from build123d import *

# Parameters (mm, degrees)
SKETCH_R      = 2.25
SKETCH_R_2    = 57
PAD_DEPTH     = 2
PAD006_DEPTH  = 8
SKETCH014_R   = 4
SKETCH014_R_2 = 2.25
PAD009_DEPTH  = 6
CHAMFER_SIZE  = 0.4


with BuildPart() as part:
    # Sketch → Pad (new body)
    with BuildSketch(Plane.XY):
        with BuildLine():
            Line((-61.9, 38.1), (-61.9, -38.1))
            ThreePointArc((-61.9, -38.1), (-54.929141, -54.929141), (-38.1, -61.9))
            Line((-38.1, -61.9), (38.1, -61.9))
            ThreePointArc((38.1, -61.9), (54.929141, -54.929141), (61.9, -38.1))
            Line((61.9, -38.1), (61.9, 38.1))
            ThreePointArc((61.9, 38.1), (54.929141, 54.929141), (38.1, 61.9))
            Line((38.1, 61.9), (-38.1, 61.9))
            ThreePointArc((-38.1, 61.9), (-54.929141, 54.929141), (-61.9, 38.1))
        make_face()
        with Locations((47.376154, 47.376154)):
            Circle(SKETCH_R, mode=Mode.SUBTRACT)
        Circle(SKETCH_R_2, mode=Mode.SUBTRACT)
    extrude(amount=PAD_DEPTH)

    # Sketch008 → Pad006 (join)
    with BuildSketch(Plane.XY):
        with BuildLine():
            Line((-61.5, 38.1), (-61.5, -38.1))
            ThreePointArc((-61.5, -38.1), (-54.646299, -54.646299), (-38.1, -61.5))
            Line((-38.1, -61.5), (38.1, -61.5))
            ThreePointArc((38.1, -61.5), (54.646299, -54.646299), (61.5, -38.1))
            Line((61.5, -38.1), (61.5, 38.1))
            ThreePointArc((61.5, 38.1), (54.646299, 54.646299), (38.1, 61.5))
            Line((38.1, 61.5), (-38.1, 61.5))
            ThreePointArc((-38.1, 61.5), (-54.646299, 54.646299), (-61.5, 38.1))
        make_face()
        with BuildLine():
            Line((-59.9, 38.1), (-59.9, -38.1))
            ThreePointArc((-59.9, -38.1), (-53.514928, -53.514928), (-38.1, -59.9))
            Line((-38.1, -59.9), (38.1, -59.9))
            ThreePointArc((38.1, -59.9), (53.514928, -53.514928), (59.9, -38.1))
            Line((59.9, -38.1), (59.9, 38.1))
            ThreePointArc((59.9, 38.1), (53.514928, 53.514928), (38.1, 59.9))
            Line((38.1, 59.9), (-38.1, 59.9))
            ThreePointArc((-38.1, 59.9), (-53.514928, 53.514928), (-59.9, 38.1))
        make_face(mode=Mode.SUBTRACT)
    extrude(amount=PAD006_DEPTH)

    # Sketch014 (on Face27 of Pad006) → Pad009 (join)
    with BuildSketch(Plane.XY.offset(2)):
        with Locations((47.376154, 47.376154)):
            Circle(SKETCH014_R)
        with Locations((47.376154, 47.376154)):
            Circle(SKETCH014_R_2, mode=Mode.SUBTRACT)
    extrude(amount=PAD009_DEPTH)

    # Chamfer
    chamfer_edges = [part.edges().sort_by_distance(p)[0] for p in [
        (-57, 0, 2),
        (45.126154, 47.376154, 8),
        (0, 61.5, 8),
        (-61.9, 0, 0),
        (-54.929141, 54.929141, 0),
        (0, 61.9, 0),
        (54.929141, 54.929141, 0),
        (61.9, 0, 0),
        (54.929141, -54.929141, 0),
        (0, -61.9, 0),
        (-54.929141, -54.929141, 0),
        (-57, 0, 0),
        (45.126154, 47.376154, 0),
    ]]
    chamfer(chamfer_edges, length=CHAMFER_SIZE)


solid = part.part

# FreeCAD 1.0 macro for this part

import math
import FreeCAD as App
import Part
import Sketcher

V = App.Vector
Q = App.Units.Quantity


def edges_at(feature, points):
    """Names of the edges that pass closest to the given points."""
    edges = feature.Shape.Edges
    near = lambda p: min(range(len(edges)), key=lambda i: edges[i].distToShape(Part.Vertex(*p))[0])
    return sorted({f"Edge{near(p) + 1}" for p in points})

doc = App.newDocument("Part")
body = doc.addObject("PartDesign::Body", "Body")

# Sketch on XY plane
sketch1 = body.newObject("Sketcher::SketchObject", "Sketch")
sketch1.AttachmentSupport = (doc.getObject("XY_Plane"), [""])
sketch1.MapMode = "FlatFace"
sketch1.addGeometry(Part.LineSegment(V(-61.9, 38.1, 0), V(-61.9, -38.1, 0)), False)
sketch1.addGeometry(Part.ArcOfCircle(Part.Circle(V(-38.1, -38.1, 0), V(0, 0, 1), 23.8), math.radians(-180), math.radians(-90)), False)
sketch1.addGeometry(Part.LineSegment(V(-38.1, -61.9, 0), V(38.1, -61.9, 0)), False)
sketch1.addGeometry(Part.ArcOfCircle(Part.Circle(V(38.1, -38.1, 0), V(0, 0, 1), 23.8), math.radians(-90), math.radians(0)), False)
sketch1.addGeometry(Part.LineSegment(V(61.9, -38.1, 0), V(61.9, 38.1, 0)), False)
sketch1.addGeometry(Part.ArcOfCircle(Part.Circle(V(38.1, 38.1, 0), V(0, 0, 1), 23.8), math.radians(0), math.radians(90)), False)
sketch1.addGeometry(Part.LineSegment(V(38.1, 61.9, 0), V(-38.1, 61.9, 0)), False)
sketch1.addGeometry(Part.ArcOfCircle(Part.Circle(V(-38.1, 38.1, 0), V(0, 0, 1), 23.8), math.radians(90), math.radians(180)), False)
sketch1.addGeometry(Part.Circle(V(0, 0, 0), V(0, 0, 1), 57), False)
sketch1.addGeometry(Part.Circle(V(47.4, 47.4, 0), V(0, 0, 1), 2.2), False)
sketch1.addConstraint(Sketcher.Constraint("Tangent", 0, 2, 1, 1))
sketch1.addConstraint(Sketcher.Constraint("Tangent", 1, 2, 2, 1))
sketch1.addConstraint(Sketcher.Constraint("Tangent", 2, 2, 3, 1))
sketch1.addConstraint(Sketcher.Constraint("Tangent", 3, 2, 4, 1))
sketch1.addConstraint(Sketcher.Constraint("Tangent", 4, 2, 5, 1))
sketch1.addConstraint(Sketcher.Constraint("Tangent", 5, 2, 6, 1))
sketch1.addConstraint(Sketcher.Constraint("Tangent", 6, 2, 7, 1))
sketch1.addConstraint(Sketcher.Constraint("Tangent", 7, 2, 0, 1))
sketch1.addConstraint(Sketcher.Constraint("Vertical", 0))
sketch1.addConstraint(Sketcher.Constraint("Horizontal", 2))
sketch1.addConstraint(Sketcher.Constraint("Vertical", 4))
sketch1.addConstraint(Sketcher.Constraint("Horizontal", 6))
sketch1.addConstraint(Sketcher.Constraint("Coincident", 8, 3, -1, 1))
sketch1.addConstraint(Sketcher.Constraint("Equal", 1, 3))
sketch1.addConstraint(Sketcher.Constraint("Equal", 3, 5))
sketch1.addConstraint(Sketcher.Constraint("Equal", 5, 7))
sketch1.addConstraint(Sketcher.Constraint("Symmetric", 1, 3, 5, 3, -1, 1))
sketch1.addConstraint(Sketcher.Constraint("Equal", 6, 0))
sketch1.addConstraint(Sketcher.Constraint("Diameter", 8, Q("114 mm")))
sketch1.addConstraint(Sketcher.Constraint("Diameter", 9, Q("4.5 mm")))
sketch1.addConstraint(Sketcher.Constraint("Radius", 1, Q("23.800001 mm")))
sketch1.addConstraint(Sketcher.Constraint("DistanceX", 2, 1, 2, 2, Q("76.2 mm")))
sketch1.addConstraint(Sketcher.Constraint("DistanceX", -1, 1, 9, 3, Q("47.376154 mm")))
sketch1.addConstraint(Sketcher.Constraint("DistanceY", -1, 1, 9, 3, Q("47.376154 mm")))
pad1 = body.newObject("PartDesign::Pad", "Pad")
pad1.Profile = sketch1
pad1.Length = 2

# Sketch on XY plane
sketch2 = body.newObject("Sketcher::SketchObject", "Sketch001")
sketch2.AttachmentSupport = (doc.getObject("XY_Plane"), [""])
sketch2.MapMode = "FlatFace"
sketch2.addGeometry(Part.LineSegment(V(-62, 38, 0), V(-62, -38, 0)), False)
sketch2.addGeometry(Part.ArcOfCircle(Part.Circle(V(-38, -38, 0), V(0, 0, 1), 23), math.radians(180), math.radians(270)), False)
sketch2.addGeometry(Part.LineSegment(V(-38, -62, 0), V(38, -62, 0)), False)
sketch2.addGeometry(Part.ArcOfCircle(Part.Circle(V(38, -38, 0), V(0, 0, 1), 23), math.radians(-90), math.radians(0)), False)
sketch2.addGeometry(Part.LineSegment(V(62, -38, 0), V(62, 38, 0)), False)
sketch2.addGeometry(Part.ArcOfCircle(Part.Circle(V(38, 38, 0), V(0, 0, 1), 23), math.radians(0), math.radians(90)), False)
sketch2.addGeometry(Part.LineSegment(V(38, 62, 0), V(-38, 62, 0)), False)
sketch2.addGeometry(Part.ArcOfCircle(Part.Circle(V(-38, 38, 0), V(0, 0, 1), 23), math.radians(90), math.radians(180)), False)
sketch2.addGeometry(Part.LineSegment(V(-60, -38, 0), V(-60, 38, 0)), False)
sketch2.addGeometry(Part.ArcOfCircle(Part.Circle(V(-38, 38, 0), V(0, 0, 1), 22), math.radians(90), math.radians(180)), False)
sketch2.addGeometry(Part.LineSegment(V(-38, 60, 0), V(38, 60, 0)), False)
sketch2.addGeometry(Part.ArcOfCircle(Part.Circle(V(38, 38, 0), V(0, 0, 1), 22), math.radians(0), math.radians(90)), False)
sketch2.addGeometry(Part.LineSegment(V(60, 38, 0), V(60, -38, 0)), False)
sketch2.addGeometry(Part.ArcOfCircle(Part.Circle(V(38, -38, 0), V(0, 0, 1), 22), math.radians(-90), math.radians(0)), False)
sketch2.addGeometry(Part.LineSegment(V(38, -60, 0), V(-38, -60, 0)), False)
sketch2.addGeometry(Part.ArcOfCircle(Part.Circle(V(-38, -38, 0), V(0, 0, 1), 22), math.radians(180), math.radians(270)), False)
sketch2.addConstraint(Sketcher.Constraint("Tangent", 0, 2, 1, 1))
sketch2.addConstraint(Sketcher.Constraint("Tangent", 1, 2, 2, 1))
sketch2.addConstraint(Sketcher.Constraint("Tangent", 2, 2, 3, 1))
sketch2.addConstraint(Sketcher.Constraint("Tangent", 3, 2, 4, 1))
sketch2.addConstraint(Sketcher.Constraint("Tangent", 4, 2, 5, 1))
sketch2.addConstraint(Sketcher.Constraint("Tangent", 5, 2, 6, 1))
sketch2.addConstraint(Sketcher.Constraint("Tangent", 6, 2, 7, 1))
sketch2.addConstraint(Sketcher.Constraint("Tangent", 7, 2, 0, 1))
sketch2.addConstraint(Sketcher.Constraint("Tangent", 8, 2, 9, 2))
sketch2.addConstraint(Sketcher.Constraint("Tangent", 9, 1, 10, 1))
sketch2.addConstraint(Sketcher.Constraint("Tangent", 10, 2, 11, 2))
sketch2.addConstraint(Sketcher.Constraint("Tangent", 11, 1, 12, 1))
sketch2.addConstraint(Sketcher.Constraint("Tangent", 12, 2, 13, 2))
sketch2.addConstraint(Sketcher.Constraint("Tangent", 13, 1, 14, 1))
sketch2.addConstraint(Sketcher.Constraint("Tangent", 14, 2, 15, 2))
sketch2.addConstraint(Sketcher.Constraint("Tangent", 15, 1, 8, 1))
sketch2.addConstraint(Sketcher.Constraint("Vertical", 0))
sketch2.addConstraint(Sketcher.Constraint("Horizontal", 2))
sketch2.addConstraint(Sketcher.Constraint("Vertical", 4))
sketch2.addConstraint(Sketcher.Constraint("Horizontal", 6))
sketch2.addConstraint(Sketcher.Constraint("Vertical", 8))
sketch2.addConstraint(Sketcher.Constraint("Horizontal", 10))
sketch2.addConstraint(Sketcher.Constraint("Vertical", 12))
sketch2.addConstraint(Sketcher.Constraint("Horizontal", 14))
sketch2.addConstraint(Sketcher.Constraint("Coincident", 9, 3, 7, 3))
sketch2.addConstraint(Sketcher.Constraint("Coincident", 11, 3, 5, 3))
sketch2.addConstraint(Sketcher.Constraint("Coincident", 13, 3, 3, 3))
sketch2.addConstraint(Sketcher.Constraint("Equal", 1, 3))
sketch2.addConstraint(Sketcher.Constraint("Equal", 3, 5))
sketch2.addConstraint(Sketcher.Constraint("Equal", 5, 7))
sketch2.addConstraint(Sketcher.Constraint("Equal", 13, 15))
sketch2.addConstraint(Sketcher.Constraint("Symmetric", 1, 3, 5, 3, -1, 1))
sketch2.addConstraint(Sketcher.Constraint("Equal", 14, 0))
sketch2.addConstraint(Sketcher.Constraint("Radius", 1, Q("23.399999 mm")))
sketch2.addConstraint(Sketcher.Constraint("Radius", 9, Q("21.799999 mm")))
sketch2.addConstraint(Sketcher.Constraint("DistanceX", 2, 1, 2, 2, Q("76.2 mm")))
pad2 = body.newObject("PartDesign::Pad", "Pad001")
pad2.Profile = sketch2
pad2.Length = 8

# Sketch on XY plane
sketch3 = body.newObject("Sketcher::SketchObject", "Sketch002")
sketch3.AttachmentSupport = (doc.getObject("XY_Plane"), [""])
sketch3.MapMode = "FlatFace"
sketch3.AttachmentOffset = App.Placement(V(0, 0, 2), App.Rotation())
sketch3.addGeometry(Part.Circle(V(47.4, 47.4, 0), V(0, 0, 1), 4), False)
sketch3.addGeometry(Part.Circle(V(47.4, 47.4, 0), V(0, 0, 1), 2.2), False)
sketch3.addConstraint(Sketcher.Constraint("Coincident", 1, 3, 0, 3))
sketch3.addConstraint(Sketcher.Constraint("Diameter", 0, Q("8 mm")))
sketch3.addConstraint(Sketcher.Constraint("Diameter", 1, Q("4.5 mm")))
sketch3.addConstraint(Sketcher.Constraint("DistanceX", -1, 1, 0, 3, Q("47.376154 mm")))
sketch3.addConstraint(Sketcher.Constraint("DistanceY", -1, 1, 0, 3, Q("47.376154 mm")))
pad3 = body.newObject("PartDesign::Pad", "Pad002")
pad3.Profile = sketch3
pad3.Length = 6
doc.recompute()

chamfer = body.newObject("PartDesign::Chamfer", "Chamfer")
chamfer.Base = (pad3, edges_at(pad3, [
    (-57, 0, 2),
    (45.126, 47.376, 8),
    (0, 61.5, 8),
    (-61.9, 0, 0),
    (-54.929, 54.929, 0),
    (0, 61.9, 0),
    (54.929, 54.929, 0),
    (61.9, 0, 0),
    (54.929, -54.929, 0),
    (0, -61.9, 0),
    (-54.929, -54.929, 0),
    (-57, 0, 0),
    (45.126, 47.376, 0),
]))
chamfer.Size = 0.4

doc.recompute()
